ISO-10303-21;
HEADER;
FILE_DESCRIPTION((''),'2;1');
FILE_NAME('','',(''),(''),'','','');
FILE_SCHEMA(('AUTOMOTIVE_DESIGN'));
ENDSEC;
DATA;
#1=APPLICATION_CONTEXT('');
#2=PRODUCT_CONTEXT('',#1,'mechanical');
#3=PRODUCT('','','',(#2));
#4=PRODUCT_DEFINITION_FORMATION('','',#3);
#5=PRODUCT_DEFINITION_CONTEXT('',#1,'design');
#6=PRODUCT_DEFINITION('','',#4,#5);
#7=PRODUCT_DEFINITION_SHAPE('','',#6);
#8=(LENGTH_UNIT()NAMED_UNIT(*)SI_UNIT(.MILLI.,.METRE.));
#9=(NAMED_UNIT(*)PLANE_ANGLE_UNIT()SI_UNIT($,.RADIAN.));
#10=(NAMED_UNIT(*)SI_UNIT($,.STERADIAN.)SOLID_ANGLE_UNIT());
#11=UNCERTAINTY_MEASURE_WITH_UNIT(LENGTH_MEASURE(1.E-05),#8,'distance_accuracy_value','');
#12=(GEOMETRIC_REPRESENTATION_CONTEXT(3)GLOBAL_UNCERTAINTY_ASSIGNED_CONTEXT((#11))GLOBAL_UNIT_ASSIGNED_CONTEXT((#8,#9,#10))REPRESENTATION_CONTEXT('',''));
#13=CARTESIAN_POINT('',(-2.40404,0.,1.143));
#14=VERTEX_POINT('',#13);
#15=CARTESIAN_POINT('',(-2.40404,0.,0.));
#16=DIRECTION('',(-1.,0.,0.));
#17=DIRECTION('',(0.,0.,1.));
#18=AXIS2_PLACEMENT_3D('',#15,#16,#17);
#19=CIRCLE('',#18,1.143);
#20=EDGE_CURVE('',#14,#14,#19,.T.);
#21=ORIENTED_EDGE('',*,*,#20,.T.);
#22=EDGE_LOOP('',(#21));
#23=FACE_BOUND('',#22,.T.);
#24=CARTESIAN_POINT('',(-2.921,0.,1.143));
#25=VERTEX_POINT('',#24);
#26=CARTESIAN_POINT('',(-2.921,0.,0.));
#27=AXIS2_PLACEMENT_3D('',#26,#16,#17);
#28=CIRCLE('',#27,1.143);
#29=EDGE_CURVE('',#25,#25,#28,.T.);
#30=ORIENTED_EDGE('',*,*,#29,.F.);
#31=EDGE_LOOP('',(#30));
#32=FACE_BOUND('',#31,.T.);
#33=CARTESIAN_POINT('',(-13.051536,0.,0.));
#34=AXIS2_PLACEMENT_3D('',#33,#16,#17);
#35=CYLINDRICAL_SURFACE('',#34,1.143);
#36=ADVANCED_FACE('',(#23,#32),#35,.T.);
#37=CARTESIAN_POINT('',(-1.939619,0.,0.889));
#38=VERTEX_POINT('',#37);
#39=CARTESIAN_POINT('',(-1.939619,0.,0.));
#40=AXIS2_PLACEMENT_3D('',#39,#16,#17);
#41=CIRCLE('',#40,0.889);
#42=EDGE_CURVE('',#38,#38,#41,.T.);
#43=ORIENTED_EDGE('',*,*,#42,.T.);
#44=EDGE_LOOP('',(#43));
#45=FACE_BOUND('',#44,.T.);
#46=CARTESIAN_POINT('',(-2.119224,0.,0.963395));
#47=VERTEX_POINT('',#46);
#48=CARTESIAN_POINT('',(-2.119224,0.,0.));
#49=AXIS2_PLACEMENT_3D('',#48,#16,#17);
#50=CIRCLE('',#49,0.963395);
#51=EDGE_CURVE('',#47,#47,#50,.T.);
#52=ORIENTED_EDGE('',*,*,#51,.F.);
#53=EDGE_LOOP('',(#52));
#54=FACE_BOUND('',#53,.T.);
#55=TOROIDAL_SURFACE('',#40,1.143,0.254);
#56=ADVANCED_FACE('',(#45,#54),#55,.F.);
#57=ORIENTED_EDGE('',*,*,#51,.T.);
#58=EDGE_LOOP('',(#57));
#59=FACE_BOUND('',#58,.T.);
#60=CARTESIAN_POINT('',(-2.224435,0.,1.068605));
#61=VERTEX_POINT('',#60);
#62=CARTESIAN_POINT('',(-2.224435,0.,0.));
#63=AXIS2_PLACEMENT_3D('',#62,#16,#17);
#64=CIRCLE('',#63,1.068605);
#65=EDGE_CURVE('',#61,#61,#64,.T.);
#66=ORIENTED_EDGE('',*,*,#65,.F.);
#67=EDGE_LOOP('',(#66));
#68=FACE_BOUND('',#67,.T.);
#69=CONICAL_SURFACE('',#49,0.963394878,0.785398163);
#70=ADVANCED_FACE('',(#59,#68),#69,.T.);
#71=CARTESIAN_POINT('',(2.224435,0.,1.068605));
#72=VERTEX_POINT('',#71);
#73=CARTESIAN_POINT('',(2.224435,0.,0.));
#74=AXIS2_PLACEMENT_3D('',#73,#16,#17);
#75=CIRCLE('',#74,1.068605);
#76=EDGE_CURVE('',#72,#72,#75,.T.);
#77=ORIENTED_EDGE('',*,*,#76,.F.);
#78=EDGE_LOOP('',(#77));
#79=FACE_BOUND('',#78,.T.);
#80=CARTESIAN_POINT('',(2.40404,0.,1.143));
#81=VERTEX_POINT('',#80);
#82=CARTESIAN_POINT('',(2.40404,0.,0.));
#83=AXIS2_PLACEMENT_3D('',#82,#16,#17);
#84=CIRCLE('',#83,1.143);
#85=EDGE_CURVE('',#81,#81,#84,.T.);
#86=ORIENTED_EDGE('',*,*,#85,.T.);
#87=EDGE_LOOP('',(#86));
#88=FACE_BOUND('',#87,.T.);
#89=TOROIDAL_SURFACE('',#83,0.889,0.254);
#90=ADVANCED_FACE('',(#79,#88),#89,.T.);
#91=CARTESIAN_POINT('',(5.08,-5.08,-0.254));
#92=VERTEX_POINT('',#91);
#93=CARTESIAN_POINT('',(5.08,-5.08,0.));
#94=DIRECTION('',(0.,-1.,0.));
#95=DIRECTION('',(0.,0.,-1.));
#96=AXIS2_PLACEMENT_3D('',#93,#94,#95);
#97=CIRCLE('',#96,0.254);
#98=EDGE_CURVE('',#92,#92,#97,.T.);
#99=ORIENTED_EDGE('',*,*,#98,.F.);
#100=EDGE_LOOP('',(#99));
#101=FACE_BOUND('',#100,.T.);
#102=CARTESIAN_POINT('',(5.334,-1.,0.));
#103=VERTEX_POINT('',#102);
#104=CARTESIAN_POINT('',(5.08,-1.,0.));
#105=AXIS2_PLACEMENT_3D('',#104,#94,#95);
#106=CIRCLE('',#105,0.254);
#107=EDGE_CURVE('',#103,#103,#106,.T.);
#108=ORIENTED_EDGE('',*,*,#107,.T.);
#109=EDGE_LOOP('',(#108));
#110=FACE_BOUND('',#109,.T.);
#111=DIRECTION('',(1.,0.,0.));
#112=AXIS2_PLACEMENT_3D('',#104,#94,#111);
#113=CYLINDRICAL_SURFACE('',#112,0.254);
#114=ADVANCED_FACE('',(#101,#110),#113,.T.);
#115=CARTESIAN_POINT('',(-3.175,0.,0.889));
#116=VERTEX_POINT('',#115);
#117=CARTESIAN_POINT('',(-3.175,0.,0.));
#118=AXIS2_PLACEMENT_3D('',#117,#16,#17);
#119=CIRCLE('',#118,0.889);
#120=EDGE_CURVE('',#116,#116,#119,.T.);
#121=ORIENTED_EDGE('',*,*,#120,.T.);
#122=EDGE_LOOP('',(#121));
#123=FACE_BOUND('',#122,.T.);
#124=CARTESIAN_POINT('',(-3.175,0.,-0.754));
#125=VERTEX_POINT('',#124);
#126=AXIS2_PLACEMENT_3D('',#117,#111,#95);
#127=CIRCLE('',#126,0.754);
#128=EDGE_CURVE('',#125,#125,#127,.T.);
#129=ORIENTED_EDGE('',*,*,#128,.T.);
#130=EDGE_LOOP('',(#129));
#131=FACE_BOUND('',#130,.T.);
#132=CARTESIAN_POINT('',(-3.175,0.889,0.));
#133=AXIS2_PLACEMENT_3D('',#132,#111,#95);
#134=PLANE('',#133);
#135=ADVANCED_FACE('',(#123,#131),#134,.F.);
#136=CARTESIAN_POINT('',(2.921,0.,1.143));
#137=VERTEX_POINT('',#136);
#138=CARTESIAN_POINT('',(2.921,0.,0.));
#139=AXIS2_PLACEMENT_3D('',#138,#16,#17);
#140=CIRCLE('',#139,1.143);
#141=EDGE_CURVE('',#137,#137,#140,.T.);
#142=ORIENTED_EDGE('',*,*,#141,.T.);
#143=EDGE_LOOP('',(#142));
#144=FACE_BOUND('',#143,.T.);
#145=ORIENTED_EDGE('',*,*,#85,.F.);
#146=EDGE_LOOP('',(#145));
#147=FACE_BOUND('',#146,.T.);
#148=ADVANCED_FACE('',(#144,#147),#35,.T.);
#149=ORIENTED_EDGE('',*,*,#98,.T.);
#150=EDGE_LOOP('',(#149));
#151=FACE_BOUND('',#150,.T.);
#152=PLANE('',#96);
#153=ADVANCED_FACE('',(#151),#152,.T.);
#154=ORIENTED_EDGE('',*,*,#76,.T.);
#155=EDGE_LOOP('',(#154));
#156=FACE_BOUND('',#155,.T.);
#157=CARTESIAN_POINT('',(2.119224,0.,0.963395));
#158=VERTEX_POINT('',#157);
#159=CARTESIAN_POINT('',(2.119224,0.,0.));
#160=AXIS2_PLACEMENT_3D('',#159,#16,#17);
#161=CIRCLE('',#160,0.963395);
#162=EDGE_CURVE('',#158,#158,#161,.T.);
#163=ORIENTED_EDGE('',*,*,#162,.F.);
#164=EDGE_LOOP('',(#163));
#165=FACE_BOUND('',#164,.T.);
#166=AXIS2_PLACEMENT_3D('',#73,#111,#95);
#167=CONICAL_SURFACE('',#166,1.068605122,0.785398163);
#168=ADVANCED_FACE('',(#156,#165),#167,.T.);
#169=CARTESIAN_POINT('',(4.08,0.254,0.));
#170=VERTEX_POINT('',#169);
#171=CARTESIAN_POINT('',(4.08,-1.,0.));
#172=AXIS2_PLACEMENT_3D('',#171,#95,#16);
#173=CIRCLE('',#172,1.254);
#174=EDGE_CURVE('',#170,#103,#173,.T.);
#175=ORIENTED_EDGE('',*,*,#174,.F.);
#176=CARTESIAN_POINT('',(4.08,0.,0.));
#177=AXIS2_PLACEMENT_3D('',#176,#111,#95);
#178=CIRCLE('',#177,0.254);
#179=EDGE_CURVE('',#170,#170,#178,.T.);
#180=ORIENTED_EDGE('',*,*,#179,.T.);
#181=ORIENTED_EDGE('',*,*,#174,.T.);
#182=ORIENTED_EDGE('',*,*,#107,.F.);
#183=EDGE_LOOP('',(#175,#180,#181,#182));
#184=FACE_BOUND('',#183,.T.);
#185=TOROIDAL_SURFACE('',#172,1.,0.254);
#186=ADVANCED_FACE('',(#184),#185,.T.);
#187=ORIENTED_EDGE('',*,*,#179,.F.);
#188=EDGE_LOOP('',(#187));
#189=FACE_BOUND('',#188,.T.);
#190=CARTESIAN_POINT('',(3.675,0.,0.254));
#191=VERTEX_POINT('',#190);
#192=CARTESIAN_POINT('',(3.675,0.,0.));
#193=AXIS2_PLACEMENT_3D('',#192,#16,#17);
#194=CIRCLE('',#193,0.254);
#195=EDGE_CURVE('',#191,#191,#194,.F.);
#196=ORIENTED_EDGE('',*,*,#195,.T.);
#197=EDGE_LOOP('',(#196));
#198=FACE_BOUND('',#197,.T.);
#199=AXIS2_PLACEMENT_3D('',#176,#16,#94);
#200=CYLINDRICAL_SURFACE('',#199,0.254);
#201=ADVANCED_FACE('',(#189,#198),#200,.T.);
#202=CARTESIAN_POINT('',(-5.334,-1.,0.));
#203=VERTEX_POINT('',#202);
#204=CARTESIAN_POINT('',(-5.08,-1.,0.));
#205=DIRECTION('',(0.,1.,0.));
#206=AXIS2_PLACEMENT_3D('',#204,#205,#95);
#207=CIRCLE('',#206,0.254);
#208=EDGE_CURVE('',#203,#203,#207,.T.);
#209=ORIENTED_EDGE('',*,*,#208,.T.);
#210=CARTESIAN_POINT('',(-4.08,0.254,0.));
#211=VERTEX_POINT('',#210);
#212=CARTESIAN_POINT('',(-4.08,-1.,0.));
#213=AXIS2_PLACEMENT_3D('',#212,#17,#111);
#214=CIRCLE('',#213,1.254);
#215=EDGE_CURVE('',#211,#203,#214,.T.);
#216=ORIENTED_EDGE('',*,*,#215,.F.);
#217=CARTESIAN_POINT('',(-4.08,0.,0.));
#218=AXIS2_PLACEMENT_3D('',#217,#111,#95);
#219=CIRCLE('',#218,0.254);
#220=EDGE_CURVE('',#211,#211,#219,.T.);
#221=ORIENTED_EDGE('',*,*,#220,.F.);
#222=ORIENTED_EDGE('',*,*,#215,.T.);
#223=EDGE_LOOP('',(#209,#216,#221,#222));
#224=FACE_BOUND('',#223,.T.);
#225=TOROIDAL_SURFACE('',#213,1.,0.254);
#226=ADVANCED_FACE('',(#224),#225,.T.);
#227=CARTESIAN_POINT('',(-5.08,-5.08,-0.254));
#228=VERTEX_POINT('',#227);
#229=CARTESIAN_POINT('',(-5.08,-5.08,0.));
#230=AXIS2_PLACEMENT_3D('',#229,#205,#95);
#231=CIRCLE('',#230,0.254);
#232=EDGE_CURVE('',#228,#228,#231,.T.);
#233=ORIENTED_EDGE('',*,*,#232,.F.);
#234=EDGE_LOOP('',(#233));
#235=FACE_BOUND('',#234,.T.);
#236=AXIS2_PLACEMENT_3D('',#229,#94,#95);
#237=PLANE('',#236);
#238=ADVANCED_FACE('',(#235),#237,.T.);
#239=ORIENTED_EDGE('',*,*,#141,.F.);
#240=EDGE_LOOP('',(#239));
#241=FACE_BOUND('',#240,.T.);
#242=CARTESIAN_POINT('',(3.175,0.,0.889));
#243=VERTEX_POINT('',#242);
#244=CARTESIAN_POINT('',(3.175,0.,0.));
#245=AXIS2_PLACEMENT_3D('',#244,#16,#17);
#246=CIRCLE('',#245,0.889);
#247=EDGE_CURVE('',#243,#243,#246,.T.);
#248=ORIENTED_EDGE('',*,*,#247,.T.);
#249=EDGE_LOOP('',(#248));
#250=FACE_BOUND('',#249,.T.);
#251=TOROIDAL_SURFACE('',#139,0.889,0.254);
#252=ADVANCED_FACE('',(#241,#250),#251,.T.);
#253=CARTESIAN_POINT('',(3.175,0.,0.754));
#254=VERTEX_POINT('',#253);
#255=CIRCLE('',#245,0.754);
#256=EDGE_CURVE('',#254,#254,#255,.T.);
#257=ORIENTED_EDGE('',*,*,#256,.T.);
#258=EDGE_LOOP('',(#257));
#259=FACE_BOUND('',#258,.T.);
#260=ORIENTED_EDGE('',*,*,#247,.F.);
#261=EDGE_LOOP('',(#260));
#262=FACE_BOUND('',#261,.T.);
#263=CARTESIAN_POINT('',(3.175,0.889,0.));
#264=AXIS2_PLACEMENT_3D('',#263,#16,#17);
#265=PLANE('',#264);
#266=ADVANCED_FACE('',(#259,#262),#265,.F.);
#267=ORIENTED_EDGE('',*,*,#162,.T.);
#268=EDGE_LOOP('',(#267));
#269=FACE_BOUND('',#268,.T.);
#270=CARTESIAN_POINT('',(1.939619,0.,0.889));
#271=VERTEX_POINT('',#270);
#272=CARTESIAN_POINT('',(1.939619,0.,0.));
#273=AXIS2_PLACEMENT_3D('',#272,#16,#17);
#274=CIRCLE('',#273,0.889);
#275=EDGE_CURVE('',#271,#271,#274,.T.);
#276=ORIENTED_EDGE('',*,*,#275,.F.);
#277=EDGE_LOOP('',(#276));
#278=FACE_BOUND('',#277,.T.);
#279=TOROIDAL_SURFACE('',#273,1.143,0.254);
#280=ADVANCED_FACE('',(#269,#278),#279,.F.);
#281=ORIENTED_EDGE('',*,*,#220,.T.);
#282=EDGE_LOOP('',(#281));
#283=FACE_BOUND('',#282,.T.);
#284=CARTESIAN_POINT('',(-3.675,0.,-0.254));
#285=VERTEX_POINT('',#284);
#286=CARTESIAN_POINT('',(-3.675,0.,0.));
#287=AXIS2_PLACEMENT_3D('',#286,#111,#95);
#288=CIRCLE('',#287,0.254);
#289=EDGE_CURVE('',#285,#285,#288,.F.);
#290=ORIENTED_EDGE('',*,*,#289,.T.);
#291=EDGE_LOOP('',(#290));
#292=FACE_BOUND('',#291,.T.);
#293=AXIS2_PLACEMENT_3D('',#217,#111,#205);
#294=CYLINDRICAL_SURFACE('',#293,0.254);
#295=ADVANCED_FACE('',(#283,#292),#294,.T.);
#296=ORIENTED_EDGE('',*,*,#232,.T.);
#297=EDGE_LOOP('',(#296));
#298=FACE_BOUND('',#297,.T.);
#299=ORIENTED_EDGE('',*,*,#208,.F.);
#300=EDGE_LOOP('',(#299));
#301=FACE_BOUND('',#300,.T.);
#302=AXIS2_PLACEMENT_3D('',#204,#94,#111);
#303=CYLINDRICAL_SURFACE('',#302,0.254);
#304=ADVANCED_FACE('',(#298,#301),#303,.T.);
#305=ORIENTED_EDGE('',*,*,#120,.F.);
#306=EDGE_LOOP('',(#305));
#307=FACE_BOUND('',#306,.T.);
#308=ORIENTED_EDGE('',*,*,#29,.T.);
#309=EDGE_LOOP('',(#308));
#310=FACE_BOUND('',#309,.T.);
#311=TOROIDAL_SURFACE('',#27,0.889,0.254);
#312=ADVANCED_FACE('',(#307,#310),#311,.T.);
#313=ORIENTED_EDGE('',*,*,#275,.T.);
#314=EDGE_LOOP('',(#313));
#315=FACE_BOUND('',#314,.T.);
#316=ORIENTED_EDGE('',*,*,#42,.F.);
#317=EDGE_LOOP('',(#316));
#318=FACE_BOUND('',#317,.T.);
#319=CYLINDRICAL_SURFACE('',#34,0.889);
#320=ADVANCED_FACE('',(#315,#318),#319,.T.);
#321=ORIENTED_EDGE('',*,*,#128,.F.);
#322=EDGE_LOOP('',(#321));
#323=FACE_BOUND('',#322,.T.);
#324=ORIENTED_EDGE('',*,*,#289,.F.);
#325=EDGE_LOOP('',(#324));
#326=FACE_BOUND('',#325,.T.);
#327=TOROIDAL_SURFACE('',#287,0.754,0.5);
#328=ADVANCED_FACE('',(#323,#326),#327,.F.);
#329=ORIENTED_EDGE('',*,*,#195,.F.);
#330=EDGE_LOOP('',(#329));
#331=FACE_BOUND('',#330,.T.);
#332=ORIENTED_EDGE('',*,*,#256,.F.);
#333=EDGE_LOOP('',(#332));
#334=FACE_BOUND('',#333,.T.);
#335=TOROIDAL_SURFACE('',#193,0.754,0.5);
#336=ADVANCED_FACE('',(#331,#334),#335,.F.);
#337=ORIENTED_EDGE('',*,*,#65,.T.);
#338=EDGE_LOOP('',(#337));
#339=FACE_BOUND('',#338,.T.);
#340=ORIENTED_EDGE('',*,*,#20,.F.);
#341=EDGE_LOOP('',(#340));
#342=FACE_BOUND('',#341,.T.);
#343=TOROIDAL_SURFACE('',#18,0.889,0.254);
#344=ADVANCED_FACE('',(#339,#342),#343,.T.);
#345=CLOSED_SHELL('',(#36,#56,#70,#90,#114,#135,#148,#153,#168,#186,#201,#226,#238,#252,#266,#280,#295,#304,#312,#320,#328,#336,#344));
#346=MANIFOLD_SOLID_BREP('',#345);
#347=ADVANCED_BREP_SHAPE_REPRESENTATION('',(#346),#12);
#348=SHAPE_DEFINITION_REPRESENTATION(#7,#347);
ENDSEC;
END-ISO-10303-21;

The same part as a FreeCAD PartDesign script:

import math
import FreeCAD as App
import Part
import Sketcher
Q = App.Units.Quantity


def edges_at(feature, points):
    """Names of the edges that pass closest to the given points."""
    edges = feature.Shape.Edges
    near = lambda p: min(range(len(edges)), key=lambda i: edges[i].distToShape(Part.Vertex(*p))[0])
    return sorted({f"Edge{near(p) + 1}" for p in points})

doc = App.newDocument("Part")
body = doc.addObject("PartDesign::Body", "Body")

# Sketch on XY plane
sketch1 = doc.addObject("Sketcher::SketchObject", "Sketch")
body.addObject(sketch1)
sketch1.AttachmentSupport = (doc.XY_Plane, [""])
sketch1.MapMode = "FlatFace"
sketch1.addGeometry([
    Part.LineSegment(App.Vector(1.94, 0.89, 0), App.Vector(-1.94, 0.89, 0)),  # 0
    Part.ArcOfCircle(Part.Circle(App.Vector(-1.94, 1.14, 0), App.Vector(0, 0, 1), 0.25), math.radians(-135), math.radians(-90)),  # 1
    Part.LineSegment(App.Vector(-2.12, 0.96, 0), App.Vector(-2.22, 1.07, 0)),  # 2
    Part.ArcOfCircle(Part.Circle(App.Vector(-2.4, 0.89, 0), App.Vector(0, 0, 1), 0.25), math.radians(45), math.radians(90)),  # 3
    Part.LineSegment(App.Vector(-2.4, 1.14, 0), App.Vector(-2.92, 1.14, 0)),  # 4
    Part.ArcOfCircle(Part.Circle(App.Vector(-2.92, 0.89, 0), App.Vector(0, 0, 1), 0.25), math.radians(90), math.radians(180)),  # 5
    Part.LineSegment(App.Vector(-3.17, 0.89, 0), App.Vector(-3.17, 0, 0)),  # 6
    Part.LineSegment(App.Vector(-3.17, 0, 0), App.Vector(3.17, 0, 0)),  # 7
    Part.LineSegment(App.Vector(3.17, 0, 0), App.Vector(3.17, 0.89, 0)),  # 8
    Part.ArcOfCircle(Part.Circle(App.Vector(2.92, 0.89, 0), App.Vector(0, 0, 1), 0.25), math.radians(0), math.radians(90)),  # 9
    Part.LineSegment(App.Vector(2.92, 1.14, 0), App.Vector(2.4, 1.14, 0)),  # 10
    Part.ArcOfCircle(Part.Circle(App.Vector(2.4, 0.89, 0), App.Vector(0, 0, 1), 0.25), math.radians(90), math.radians(135)),  # 11
    Part.LineSegment(App.Vector(2.22, 1.07, 0), App.Vector(2.12, 0.96, 0)),  # 12
    Part.ArcOfCircle(Part.Circle(App.Vector(1.94, 1.14, 0), App.Vector(0, 0, 1), 0.25), math.radians(-90), math.radians(-45)),  # 13
], False)
sketch1.addConstraint([
    Sketcher.Constraint("Tangent", 0, 2, 1, 2),
    Sketcher.Constraint("Tangent", 1, 1, 2, 1),
    Sketcher.Constraint("Tangent", 2, 2, 3, 1),
    Sketcher.Constraint("Tangent", 3, 2, 4, 1),
    Sketcher.Constraint("Tangent", 4, 2, 5, 1),
    Sketcher.Constraint("Tangent", 5, 2, 6, 1),
    Sketcher.Constraint("Coincident", 6, 2, 7, 1),
    Sketcher.Constraint("Coincident", 7, 2, 8, 1),
    Sketcher.Constraint("Tangent", 8, 2, 9, 1),
    Sketcher.Constraint("Tangent", 9, 2, 10, 1),
    Sketcher.Constraint("Tangent", 10, 2, 11, 1),
    Sketcher.Constraint("Tangent", 11, 2, 12, 1),
    Sketcher.Constraint("Tangent", 12, 2, 13, 2),
    Sketcher.Constraint("Tangent", 13, 1, 0, 1),
    Sketcher.Constraint("Horizontal", 0),
    Sketcher.Constraint("Horizontal", 4),
    Sketcher.Constraint("Vertical", 6),
    Sketcher.Constraint("Horizontal", 7),
    Sketcher.Constraint("Vertical", 8),
    Sketcher.Constraint("Horizontal", 10),
    Sketcher.Constraint("Equal", 1, 3),
    Sketcher.Constraint("Equal", 3, 5),
    Sketcher.Constraint("Equal", 5, 9),
    Sketcher.Constraint("Equal", 9, 11),
    Sketcher.Constraint("Equal", 11, 13),
    Sketcher.Constraint("Symmetric", 6, 2, 7, 2, -1, 1),
    Sketcher.Constraint("Symmetric", 3, 3, 11, 3, -2),
    Sketcher.Constraint("Perpendicular", 2, 12),
    Sketcher.Constraint("Horizontal", 11, 3, 0, 2),
    Sketcher.Constraint("Horizontal", 2, 2, 11, 2),
    Sketcher.Constraint("Radius", 1, Q("0.01 in")),
    Sketcher.Constraint("DistanceX", 7, 1, 7, 2, Q("0.25 in")),
    Sketcher.Constraint("DistanceY", 6, 2, 6, 1, Q("0.035 in")),
    Sketcher.Constraint("DistanceX", 0, 2, 0, 1, 3.879239),
])
revolution = doc.addObject("PartDesign::Revolution", "Revolution")
body.addObject(revolution)
revolution.Profile = sketch1
revolution.ReferenceAxis = (sketch1, ["H_Axis"])
revolution.Angle = 360

# Sketch on YZ plane
sketch2 = doc.addObject("Sketcher::SketchObject", "Sketch001")
body.addObject(sketch2)
sketch2.AttachmentSupport = (doc.YZ_Plane, [""])
sketch2.MapMode = "FlatFace"
sketch2.addGeometry(Part.Circle(App.Vector(0, 0, 0), App.Vector(0, 0, 1), 0.25), False)
sketch2.addConstraint([
    Sketcher.Constraint("Coincident", 0, 3, -1, 1),
    Sketcher.Constraint("Diameter", 0, Q("0.02 in")),
])

# Sketch on XY plane
sketch3 = doc.addObject("Sketcher::SketchObject", "Sketch002")
body.addObject(sketch3)
sketch3.AttachmentSupport = (doc.XY_Plane, [""])
sketch3.MapMode = "FlatFace"
sketch3.addGeometry([
    Part.LineSegment(App.Vector(0, 0, 0), App.Vector(4.1, 0, 0)),
    Part.ArcOfCircle(Part.Circle(App.Vector(4.1, -1, 0), App.Vector(0, 0, 1), 1), math.radians(0), math.radians(90)),
    Part.LineSegment(App.Vector(5.1, -1, 0), App.Vector(5.1, -5.1, 0)),
], False)
sketch3.addConstraint([
    Sketcher.Constraint("Tangent", 0, 2, 1, 2),
    Sketcher.Constraint("Tangent", 1, 1, 2, 1),
    Sketcher.Constraint("Horizontal", 0),
    Sketcher.Constraint("Vertical", 2),
    Sketcher.Constraint("Coincident", 0, 1, -1, 1),
    Sketcher.Constraint("Equal", 0, 2),
    Sketcher.Constraint("DistanceX", -1, 1, 1, 1, Q("0.2 in")),
    Sketcher.Constraint("Radius", 1, 1.0),
])
doc.recompute()

additivepipe = doc.addObject("PartDesign::AdditivePipe", "AdditivePipe")
body.addObject(additivepipe)
additivepipe.Profile = sketch2
additivepipe.Spine = (sketch3, ["Edge1", "Edge2", "Edge3"])
doc.recompute()

mirrored = doc.addObject("PartDesign::Mirrored", "Mirrored")
body.addObject(mirrored)
mirrored.Originals = [additivepipe]
mirrored.MirrorPlane = (doc.YZ_Plane, [""])
body.Tip = mirrored
doc.recompute()

fillet = doc.addObject("PartDesign::Fillet", "Fillet")
body.addObject(fillet)
fillet.Base = (mirrored, edges_at(mirrored, [(3.175, 0, 0.254), (-3.175, 0, 0.254)]))
fillet.Radius = 0.5

doc.recompute()
